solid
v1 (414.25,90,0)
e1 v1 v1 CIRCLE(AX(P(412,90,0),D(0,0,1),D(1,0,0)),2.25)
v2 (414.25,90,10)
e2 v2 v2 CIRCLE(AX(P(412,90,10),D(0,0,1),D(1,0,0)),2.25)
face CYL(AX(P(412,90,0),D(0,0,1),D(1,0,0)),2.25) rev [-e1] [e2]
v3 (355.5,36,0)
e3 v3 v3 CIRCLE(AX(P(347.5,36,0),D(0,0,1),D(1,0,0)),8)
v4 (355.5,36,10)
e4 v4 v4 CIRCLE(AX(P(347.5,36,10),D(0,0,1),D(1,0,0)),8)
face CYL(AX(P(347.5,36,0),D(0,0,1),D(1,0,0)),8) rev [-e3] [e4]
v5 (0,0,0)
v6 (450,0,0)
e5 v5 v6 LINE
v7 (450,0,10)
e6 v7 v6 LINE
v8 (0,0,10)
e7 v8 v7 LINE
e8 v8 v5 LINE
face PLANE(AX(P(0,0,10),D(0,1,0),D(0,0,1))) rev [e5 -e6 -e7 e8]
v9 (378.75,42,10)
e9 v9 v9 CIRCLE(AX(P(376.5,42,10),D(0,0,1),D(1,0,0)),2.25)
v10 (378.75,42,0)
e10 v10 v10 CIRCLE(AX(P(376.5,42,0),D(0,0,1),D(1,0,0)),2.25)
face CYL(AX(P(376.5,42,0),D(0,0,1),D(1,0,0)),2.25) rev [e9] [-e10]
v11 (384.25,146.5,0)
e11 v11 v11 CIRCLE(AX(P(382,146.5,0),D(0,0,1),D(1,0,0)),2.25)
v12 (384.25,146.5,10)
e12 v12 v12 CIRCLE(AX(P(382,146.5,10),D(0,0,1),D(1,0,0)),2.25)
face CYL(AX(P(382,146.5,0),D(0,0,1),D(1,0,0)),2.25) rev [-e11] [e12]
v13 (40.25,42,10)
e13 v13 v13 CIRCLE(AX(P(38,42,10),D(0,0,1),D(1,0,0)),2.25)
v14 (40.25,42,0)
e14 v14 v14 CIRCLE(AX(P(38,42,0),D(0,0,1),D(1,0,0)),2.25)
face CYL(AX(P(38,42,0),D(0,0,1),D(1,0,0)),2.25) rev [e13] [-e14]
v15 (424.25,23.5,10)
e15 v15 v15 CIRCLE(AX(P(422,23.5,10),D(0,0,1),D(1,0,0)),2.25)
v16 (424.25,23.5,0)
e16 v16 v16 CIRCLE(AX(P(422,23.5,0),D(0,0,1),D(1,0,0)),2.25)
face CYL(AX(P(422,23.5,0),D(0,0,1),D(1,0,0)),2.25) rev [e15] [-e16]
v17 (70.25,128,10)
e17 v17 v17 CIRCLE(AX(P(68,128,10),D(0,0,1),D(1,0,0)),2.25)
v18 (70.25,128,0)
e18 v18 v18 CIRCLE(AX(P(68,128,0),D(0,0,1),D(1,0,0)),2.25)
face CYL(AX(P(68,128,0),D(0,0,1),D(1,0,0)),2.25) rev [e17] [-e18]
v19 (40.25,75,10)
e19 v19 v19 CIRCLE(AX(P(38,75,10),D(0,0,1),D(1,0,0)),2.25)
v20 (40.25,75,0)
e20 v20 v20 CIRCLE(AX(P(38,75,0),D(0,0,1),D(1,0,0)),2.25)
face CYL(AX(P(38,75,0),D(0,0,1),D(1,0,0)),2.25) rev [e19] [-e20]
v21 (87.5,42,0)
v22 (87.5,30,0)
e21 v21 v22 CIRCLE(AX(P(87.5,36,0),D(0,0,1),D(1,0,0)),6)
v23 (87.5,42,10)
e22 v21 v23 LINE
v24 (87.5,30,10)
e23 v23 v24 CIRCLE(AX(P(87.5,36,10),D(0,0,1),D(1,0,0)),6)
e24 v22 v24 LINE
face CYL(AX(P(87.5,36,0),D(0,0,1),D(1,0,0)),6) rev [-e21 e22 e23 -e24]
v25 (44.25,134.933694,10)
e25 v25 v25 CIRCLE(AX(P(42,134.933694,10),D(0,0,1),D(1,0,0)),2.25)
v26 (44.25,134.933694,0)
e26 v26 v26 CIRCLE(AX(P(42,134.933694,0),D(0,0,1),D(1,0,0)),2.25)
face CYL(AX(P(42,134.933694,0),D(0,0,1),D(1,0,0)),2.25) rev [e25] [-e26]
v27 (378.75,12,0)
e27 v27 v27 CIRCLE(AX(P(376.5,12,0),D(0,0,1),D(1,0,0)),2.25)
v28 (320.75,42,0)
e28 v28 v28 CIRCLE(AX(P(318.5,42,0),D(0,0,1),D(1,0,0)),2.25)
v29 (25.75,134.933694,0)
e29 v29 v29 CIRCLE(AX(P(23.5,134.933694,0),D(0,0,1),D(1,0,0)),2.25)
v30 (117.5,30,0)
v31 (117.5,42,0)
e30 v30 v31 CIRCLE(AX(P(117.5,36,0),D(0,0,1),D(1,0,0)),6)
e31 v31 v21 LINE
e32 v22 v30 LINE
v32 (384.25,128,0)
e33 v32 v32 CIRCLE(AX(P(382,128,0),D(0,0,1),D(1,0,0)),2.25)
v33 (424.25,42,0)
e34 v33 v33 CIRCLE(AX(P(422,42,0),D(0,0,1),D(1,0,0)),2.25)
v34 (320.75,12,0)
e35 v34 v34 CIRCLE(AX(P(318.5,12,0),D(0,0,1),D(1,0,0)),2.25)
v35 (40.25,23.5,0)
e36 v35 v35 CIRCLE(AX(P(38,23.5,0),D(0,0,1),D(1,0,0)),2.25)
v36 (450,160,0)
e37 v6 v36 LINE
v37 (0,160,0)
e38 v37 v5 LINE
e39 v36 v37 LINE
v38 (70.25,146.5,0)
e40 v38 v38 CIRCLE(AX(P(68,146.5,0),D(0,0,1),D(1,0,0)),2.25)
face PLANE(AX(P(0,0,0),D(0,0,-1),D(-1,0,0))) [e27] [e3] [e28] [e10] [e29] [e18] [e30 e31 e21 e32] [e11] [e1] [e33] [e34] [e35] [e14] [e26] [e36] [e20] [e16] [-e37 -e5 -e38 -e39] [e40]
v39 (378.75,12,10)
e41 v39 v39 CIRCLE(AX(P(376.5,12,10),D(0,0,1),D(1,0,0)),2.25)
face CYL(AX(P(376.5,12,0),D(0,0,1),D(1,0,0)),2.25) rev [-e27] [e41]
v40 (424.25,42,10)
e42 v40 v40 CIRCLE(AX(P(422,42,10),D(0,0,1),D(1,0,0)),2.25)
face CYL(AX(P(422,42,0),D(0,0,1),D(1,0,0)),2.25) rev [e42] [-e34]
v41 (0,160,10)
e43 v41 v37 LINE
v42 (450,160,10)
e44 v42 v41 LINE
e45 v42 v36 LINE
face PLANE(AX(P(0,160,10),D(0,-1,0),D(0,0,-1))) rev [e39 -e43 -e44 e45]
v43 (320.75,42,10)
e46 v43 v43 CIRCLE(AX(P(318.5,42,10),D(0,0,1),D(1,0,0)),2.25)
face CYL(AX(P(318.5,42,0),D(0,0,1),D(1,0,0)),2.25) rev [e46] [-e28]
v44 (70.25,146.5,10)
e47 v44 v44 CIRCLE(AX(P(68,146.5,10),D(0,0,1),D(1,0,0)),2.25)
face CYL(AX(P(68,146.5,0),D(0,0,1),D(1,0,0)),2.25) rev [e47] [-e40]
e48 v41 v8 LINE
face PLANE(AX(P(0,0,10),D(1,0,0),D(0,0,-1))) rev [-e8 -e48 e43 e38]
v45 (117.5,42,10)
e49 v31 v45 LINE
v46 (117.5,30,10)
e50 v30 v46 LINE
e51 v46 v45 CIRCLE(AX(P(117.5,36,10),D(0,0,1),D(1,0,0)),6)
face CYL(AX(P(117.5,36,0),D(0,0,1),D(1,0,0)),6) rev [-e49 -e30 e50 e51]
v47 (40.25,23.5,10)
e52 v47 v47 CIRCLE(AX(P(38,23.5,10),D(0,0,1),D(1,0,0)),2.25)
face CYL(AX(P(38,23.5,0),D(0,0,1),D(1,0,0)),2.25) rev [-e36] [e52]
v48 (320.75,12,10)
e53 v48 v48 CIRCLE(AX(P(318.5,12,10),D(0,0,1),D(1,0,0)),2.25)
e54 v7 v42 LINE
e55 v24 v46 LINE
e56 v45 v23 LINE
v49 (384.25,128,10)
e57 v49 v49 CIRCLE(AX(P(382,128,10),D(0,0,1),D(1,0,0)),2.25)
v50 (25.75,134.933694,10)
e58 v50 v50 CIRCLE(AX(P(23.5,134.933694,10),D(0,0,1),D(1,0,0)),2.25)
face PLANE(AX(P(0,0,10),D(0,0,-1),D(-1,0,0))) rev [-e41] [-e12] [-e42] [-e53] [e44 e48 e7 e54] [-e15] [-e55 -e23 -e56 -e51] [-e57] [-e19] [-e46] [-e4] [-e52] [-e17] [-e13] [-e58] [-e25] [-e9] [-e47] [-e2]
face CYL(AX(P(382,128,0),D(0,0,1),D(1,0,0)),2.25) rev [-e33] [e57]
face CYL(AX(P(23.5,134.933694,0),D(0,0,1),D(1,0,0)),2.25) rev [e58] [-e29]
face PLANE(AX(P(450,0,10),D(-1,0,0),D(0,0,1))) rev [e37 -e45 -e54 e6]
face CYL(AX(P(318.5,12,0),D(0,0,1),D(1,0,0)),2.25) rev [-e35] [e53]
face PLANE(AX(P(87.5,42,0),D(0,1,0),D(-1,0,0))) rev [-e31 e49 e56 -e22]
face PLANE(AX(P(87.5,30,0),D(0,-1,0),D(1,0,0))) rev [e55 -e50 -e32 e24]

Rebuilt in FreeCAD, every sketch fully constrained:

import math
import FreeCAD as App
import Part
import Sketcher

doc = App.newDocument("Part")
body = doc.addObject("PartDesign::Body", "Body")

# Sketch on XY plane
sketch1 = body.newObject("Sketcher::SketchObject", "Sketch")
sketch1.AttachmentSupport = (doc.getObject("XY_Plane"), [""])
sketch1.MapMode = "FlatFace"
sketch1.addGeometry(Part.LineSegment(App.Vector(0, 160, 0), App.Vector(0, 0, 0)), False)
sketch1.addGeometry(Part.LineSegment(App.Vector(0, 0, 0), App.Vector(450, 0, 0)), False)
sketch1.addGeometry(Part.LineSegment(App.Vector(450, 0, 0), App.Vector(450, 160, 0)), False)
sketch1.addGeometry(Part.LineSegment(App.Vector(450, 160, 0), App.Vector(0, 160, 0)), False)
sketch1.addConstraint(Sketcher.Constraint("Coincident", 0, 2, 1, 1))
sketch1.addConstraint(Sketcher.Constraint("Coincident", 1, 2, 2, 1))
sketch1.addConstraint(Sketcher.Constraint("Coincident", 2, 2, 3, 1))
sketch1.addConstraint(Sketcher.Constraint("Coincident", 3, 2, 0, 1))
sketch1.addConstraint(Sketcher.Constraint("Vertical", 0))
sketch1.addConstraint(Sketcher.Constraint("Horizontal", 1))
sketch1.addConstraint(Sketcher.Constraint("Vertical", 2))
sketch1.addConstraint(Sketcher.Constraint("Horizontal", 3))
sketch1.addConstraint(Sketcher.Constraint("Coincident", 0, 2, -1, 1))
sketch1.addConstraint(Sketcher.Constraint("DistanceX", 1, 1, 1, 2, 450.0))
sketch1.addConstraint(Sketcher.Constraint("DistanceY", 0, 2, 0, 1, 160.0))
pad1 = body.newObject("PartDesign::Pad", "Pad")
pad1.Profile = sketch1
pad1.Length = 10

# Sketch on XY plane
sketch2 = body.newObject("Sketcher::SketchObject", "Sketch001")
sketch2.AttachmentSupport = (doc.getObject("XY_Plane"), [""])
sketch2.MapMode = "FlatFace"
sketch2.AttachmentOffset = App.Placement(App.Vector(0, 0, 10), App.Rotation())
sketch2.addGeometry(Part.Circle(App.Vector(347.5, 36, 0), App.Vector(0, 0, 1), 8), False)
sketch2.addGeometry(Part.Circle(App.Vector(376.5, 42, 0), App.Vector(0, 0, 1), 2.25), False)
sketch2.addGeometry(Part.Circle(App.Vector(318.5, 42, 0), App.Vector(0, 0, 1), 2.25), False)
sketch2.addGeometry(Part.Circle(App.Vector(318.5, 12, 0), App.Vector(0, 0, 1), 2.25), False)
sketch2.addGeometry(Part.Circle(App.Vector(376.5, 12, 0), App.Vector(0, 0, 1), 2.25), False)
sketch2.addGeometry(Part.Circle(App.Vector(382, 146.5, 0), App.Vector(0, 0, 1), 2.25), False)
sketch2.addGeometry(Part.Circle(App.Vector(382, 128, 0), App.Vector(0, 0, 1), 2.25), False)
sketch2.addGeometry(Part.Circle(App.Vector(68, 146.5, 0), App.Vector(0, 0, 1), 2.25), False)
sketch2.addGeometry(Part.Circle(App.Vector(68, 128, 0), App.Vector(0, 0, 1), 2.25), False)
sketch2.addGeometry(Part.Circle(App.Vector(38, 42, 0), App.Vector(0, 0, 1), 2.25), False)
sketch2.addGeometry(Part.Circle(App.Vector(38, 23.5, 0), App.Vector(0, 0, 1), 2.25), False)
sketch2.addGeometry(Part.Circle(App.Vector(422, 23.5, 0), App.Vector(0, 0, 1), 2.25), False)
sketch2.addGeometry(Part.Circle(App.Vector(422, 42, 0), App.Vector(0, 0, 1), 2.25), False)
sketch2.addGeometry(Part.Circle(App.Vector(23.5, 134.933694, 0), App.Vector(0, 0, 1), 2.25), False)
sketch2.addGeometry(Part.Circle(App.Vector(42, 134.933694, 0), App.Vector(0, 0, 1), 2.25), False)
sketch2.addGeometry(Part.Circle(App.Vector(38, 75, 0), App.Vector(0, 0, 1), 2.25), False)
sketch2.addGeometry(Part.Circle(App.Vector(412, 90, 0), App.Vector(0, 0, 1), 2.25), False)
sketch2.addGeometry(Part.LineSegment(App.Vector(117.5, 42, 0), App.Vector(87.5, 42, 0)), False)
sketch2.addGeometry(Part.ArcOfCircle(Part.Circle(App.Vector(87.5, 36, 0), App.Vector(0, 0, 1), 6), math.radians(90), math.radians(270)), False)
sketch2.addGeometry(Part.LineSegment(App.Vector(87.5, 30, 0), App.Vector(117.5, 30, 0)), False)
sketch2.addGeometry(Part.ArcOfCircle(Part.Circle(App.Vector(117.5, 36, 0), App.Vector(0, 0, 1), 6), math.radians(-90), math.radians(90)), False)
sketch2.addConstraint(Sketcher.Constraint("Tangent", 17, 2, 18, 1))
sketch2.addConstraint(Sketcher.Constraint("Tangent", 18, 2, 19, 1))
sketch2.addConstraint(Sketcher.Constraint("Tangent", 19, 2, 20, 1))
sketch2.addConstraint(Sketcher.Constraint("Tangent", 20, 2, 17, 1))
sketch2.addConstraint(Sketcher.Constraint("Horizontal", 17))
sketch2.addConstraint(Sketcher.Constraint("Horizontal", 19))
sketch2.addConstraint(Sketcher.Constraint("Equal", 1, 2))
sketch2.addConstraint(Sketcher.Constraint("Equal", 2, 3))
sketch2.addConstraint(Sketcher.Constraint("Equal", 3, 4))
sketch2.addConstraint(Sketcher.Constraint("Equal", 4, 5))
sketch2.addConstraint(Sketcher.Constraint("Equal", 5, 6))
sketch2.addConstraint(Sketcher.Constraint("Equal", 6, 7))
sketch2.addConstraint(Sketcher.Constraint("Equal", 7, 8))
sketch2.addConstraint(Sketcher.Constraint("Equal", 8, 9))
sketch2.addConstraint(Sketcher.Constraint("Equal", 9, 10))
sketch2.addConstraint(Sketcher.Constraint("Equal", 10, 11))
sketch2.addConstraint(Sketcher.Constraint("Equal", 11, 12))
sketch2.addConstraint(Sketcher.Constraint("Equal", 12, 13))
sketch2.addConstraint(Sketcher.Constraint("Equal", 13, 14))
sketch2.addConstraint(Sketcher.Constraint("Equal", 14, 15))
sketch2.addConstraint(Sketcher.Constraint("Equal", 15, 16))
sketch2.addConstraint(Sketcher.Constraint("Horizontal", 1, 3, 2, 3))
sketch2.addConstraint(Sketcher.Constraint("Horizontal", 3, 3, 4, 3))
sketch2.addConstraint(Sketcher.Constraint("Horizontal", 5, 3, 7, 3))
sketch2.addConstraint(Sketcher.Constraint("Horizontal", 6, 3, 8, 3))
sketch2.addConstraint(Sketcher.Constraint("Horizontal", 2, 3, 9, 3))
sketch2.addConstraint(Sketcher.Constraint("Horizontal", 10, 3, 11, 3))
sketch2.addConstraint(Sketcher.Constraint("Horizontal", 9, 3, 12, 3))
sketch2.addConstraint(Sketcher.Constraint("Horizontal", 13, 3, 14, 3))
sketch2.addConstraint(Sketcher.Constraint("Horizontal", 0, 3, 18, 3))
sketch2.addConstraint(Sketcher.Constraint("Horizontal", 12, 3, 17, 2))
sketch2.addConstraint(Sketcher.Constraint("Vertical", 2, 3, 3, 3))
sketch2.addConstraint(Sketcher.Constraint("Vertical", 1, 3, 4, 3))
sketch2.addConstraint(Sketcher.Constraint("Vertical", 5, 3, 6, 3))
sketch2.addConstraint(Sketcher.Constraint("Vertical", 7, 3, 8, 3))
sketch2.addConstraint(Sketcher.Constraint("Vertical", 9, 3, 10, 3))
sketch2.addConstraint(Sketcher.Constraint("Vertical", 11, 3, 12, 3))
sketch2.addConstraint(Sketcher.Constraint("Vertical", 10, 3, 15, 3))
sketch2.addConstraint(Sketcher.Constraint("Diameter", 0, 16.0))
sketch2.addConstraint(Sketcher.Constraint("Radius", 18, 6.0))
sketch2.addConstraint(Sketcher.Constraint("Diameter", 1, 4.5))
sketch2.addConstraint(Sketcher.Constraint("DistanceX", 17, 2, 17, 1, 30.0))
sketch2.addConstraint(Sketcher.Constraint("DistanceY", -1, 1, 0, 3, 36.0))
sketch2.addConstraint(Sketcher.Constraint("DistanceY", -1, 1, 3, 3, 12.0))
sketch2.addConstraint(Sketcher.Constraint("DistanceX", -1, 1, 5, 3, 382.0))
sketch2.addConstraint(Sketcher.Constraint("DistanceY", -1, 1, 6, 3, 128.0))
sketch2.addConstraint(Sketcher.Constraint("DistanceX", -1, 1, 7, 3, 68.0))
sketch2.addConstraint(Sketcher.Constraint("DistanceX", -1, 1, 9, 3, 38.0))
sketch2.addConstraint(Sketcher.Constraint("DistanceX", -1, 1, 11, 3, 422.0))
sketch2.addConstraint(Sketcher.Constraint("DistanceX", -1, 1, 14, 3, 42.0))
sketch2.addConstraint(Sketcher.Constraint("DistanceY", -1, 1, 15, 3, 75.0))
sketch2.addConstraint(Sketcher.Constraint("DistanceX", -1, 1, 16, 3, 412.0))
sketch2.addConstraint(Sketcher.Constraint("DistanceY", -1, 1, 16, 3, 90.0))
sketch2.addConstraint(Sketcher.Constraint("DistanceX", 0, 3, 1, 3, 29.0))
sketch2.addConstraint(Sketcher.Constraint("DistanceX", 2, 3, 0, 3, 29.0))
sketch2.addConstraint(Sketcher.Constraint("DistanceY", 10, 3, 7, 3, 123.0))
sketch2.addConstraint(Sketcher.Constraint("DistanceX", 13, 3, 2, 3, 295.0))
sketch2.addConstraint(Sketcher.Constraint("DistanceX", -1, 1, 0, 3, 347.5))
sketch2.addConstraint(Sketcher.Constraint("DistanceY", -1, 1, 5, 3, 146.5))
sketch2.addConstraint(Sketcher.Constraint("DistanceX", -1, 1, 18, 3, 87.5))
sketch2.addConstraint(Sketcher.Constraint("DistanceY", -1, 1, 13, 3, 134.933694))
pocket1 = body.newObject("PartDesign::Pocket", "Pocket")
pocket1.Profile = sketch2
pocket1.Length = 10

doc.recompute()
